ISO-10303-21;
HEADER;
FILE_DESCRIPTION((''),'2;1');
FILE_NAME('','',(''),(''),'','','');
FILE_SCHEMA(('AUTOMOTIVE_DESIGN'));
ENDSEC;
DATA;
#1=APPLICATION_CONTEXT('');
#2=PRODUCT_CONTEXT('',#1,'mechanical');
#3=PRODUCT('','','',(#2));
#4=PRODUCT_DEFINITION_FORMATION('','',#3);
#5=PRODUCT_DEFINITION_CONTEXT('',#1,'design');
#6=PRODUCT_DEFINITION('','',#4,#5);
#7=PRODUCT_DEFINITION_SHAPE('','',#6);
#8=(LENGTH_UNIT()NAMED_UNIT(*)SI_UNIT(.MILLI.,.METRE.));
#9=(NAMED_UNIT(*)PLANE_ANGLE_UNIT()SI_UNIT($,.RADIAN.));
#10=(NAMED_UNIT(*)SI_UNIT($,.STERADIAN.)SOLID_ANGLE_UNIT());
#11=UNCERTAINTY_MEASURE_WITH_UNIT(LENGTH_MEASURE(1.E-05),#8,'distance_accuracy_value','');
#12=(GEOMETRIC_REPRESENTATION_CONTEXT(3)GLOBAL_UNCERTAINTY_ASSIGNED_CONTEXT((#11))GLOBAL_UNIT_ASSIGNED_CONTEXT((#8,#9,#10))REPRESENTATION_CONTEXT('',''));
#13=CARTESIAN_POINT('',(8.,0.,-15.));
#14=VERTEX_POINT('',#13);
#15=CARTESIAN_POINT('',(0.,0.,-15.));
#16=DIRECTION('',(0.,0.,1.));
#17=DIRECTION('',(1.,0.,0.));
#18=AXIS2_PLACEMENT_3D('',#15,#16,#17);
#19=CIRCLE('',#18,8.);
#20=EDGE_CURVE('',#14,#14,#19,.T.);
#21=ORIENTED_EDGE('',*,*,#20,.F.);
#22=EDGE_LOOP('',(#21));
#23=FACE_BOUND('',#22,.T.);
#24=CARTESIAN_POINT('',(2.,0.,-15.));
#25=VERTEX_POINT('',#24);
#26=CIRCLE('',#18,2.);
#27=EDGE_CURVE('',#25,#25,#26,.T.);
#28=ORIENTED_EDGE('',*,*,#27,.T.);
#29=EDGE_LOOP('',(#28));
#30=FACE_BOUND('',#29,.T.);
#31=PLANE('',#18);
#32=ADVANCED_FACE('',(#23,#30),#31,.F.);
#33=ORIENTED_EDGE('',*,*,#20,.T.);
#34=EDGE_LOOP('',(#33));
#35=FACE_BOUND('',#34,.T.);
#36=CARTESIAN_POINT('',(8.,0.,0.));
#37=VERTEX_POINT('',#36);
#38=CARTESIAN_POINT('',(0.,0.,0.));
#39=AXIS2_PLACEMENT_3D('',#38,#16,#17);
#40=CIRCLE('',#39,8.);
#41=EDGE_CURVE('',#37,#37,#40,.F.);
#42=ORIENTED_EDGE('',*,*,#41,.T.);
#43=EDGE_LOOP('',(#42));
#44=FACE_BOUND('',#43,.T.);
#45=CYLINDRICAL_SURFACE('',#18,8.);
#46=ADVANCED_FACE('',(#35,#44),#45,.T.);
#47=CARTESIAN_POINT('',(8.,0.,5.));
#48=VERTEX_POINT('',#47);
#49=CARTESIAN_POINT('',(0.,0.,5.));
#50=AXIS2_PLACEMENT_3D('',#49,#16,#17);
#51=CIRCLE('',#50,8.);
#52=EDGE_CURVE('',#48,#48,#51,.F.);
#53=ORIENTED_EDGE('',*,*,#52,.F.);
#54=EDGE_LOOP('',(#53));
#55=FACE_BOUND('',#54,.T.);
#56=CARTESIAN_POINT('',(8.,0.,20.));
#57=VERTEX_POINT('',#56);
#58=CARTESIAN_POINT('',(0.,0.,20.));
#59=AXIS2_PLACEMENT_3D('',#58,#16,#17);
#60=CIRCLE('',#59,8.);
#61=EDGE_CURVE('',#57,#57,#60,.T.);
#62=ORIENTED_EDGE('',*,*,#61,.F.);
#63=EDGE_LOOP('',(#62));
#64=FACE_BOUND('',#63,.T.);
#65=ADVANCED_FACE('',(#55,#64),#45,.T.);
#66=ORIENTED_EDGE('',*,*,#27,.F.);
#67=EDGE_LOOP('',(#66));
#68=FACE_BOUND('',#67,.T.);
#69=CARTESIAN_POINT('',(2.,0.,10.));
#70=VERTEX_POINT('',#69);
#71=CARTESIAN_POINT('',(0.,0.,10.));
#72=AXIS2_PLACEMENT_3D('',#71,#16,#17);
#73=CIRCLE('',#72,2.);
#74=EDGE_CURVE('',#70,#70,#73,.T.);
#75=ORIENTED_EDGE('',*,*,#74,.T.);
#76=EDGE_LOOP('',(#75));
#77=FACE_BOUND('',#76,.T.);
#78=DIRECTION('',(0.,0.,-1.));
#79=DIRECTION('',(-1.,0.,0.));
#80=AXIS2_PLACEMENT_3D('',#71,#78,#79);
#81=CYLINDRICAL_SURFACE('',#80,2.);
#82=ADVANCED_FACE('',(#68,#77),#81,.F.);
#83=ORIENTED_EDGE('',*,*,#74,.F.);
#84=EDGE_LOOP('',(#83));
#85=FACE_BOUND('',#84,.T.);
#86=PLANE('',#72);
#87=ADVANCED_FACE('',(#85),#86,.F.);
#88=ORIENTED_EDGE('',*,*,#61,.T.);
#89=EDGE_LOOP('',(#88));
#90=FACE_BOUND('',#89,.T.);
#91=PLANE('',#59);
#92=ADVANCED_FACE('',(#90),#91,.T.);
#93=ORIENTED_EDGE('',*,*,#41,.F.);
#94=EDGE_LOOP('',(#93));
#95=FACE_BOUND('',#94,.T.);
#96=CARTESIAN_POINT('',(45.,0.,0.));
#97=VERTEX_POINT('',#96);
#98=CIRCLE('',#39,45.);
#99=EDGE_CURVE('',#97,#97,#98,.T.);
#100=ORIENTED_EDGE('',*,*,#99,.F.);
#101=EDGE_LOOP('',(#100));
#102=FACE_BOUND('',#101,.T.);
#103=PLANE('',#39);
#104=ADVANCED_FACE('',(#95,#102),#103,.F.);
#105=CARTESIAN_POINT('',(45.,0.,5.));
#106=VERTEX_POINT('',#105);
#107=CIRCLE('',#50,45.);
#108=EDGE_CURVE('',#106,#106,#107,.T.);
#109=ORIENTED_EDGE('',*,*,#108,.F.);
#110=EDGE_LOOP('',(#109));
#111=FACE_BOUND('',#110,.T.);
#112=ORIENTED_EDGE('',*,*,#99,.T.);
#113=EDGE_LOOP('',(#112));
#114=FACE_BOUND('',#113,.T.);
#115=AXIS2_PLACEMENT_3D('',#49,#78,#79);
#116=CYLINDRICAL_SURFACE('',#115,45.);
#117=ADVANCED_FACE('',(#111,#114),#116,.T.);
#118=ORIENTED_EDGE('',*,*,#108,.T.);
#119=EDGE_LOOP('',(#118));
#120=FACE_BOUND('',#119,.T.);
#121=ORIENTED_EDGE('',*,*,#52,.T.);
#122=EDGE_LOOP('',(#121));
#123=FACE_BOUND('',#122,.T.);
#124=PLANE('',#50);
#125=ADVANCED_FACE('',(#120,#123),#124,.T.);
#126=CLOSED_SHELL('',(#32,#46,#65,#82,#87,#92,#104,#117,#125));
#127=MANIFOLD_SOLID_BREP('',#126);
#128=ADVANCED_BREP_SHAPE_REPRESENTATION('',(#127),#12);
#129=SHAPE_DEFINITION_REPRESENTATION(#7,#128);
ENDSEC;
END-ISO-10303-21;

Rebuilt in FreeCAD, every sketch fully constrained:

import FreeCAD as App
import Part
import Sketcher
from FreeCAD import Vector
Q = App.Units.Quantity

doc = App.newDocument("Part")
body = doc.addObject("PartDesign::Body", "Body")

sketch1 = body.newObject("Sketcher::SketchObject", "Sketch")
sketch1.AttachmentSupport = (doc.getObject("XY_Plane"), [""])
sketch1.MapMode = "FlatFace"
sketch1.addGeometry(Part.Circle(Vector(0, 0, 0), Vector(0, 0, 1), 8), False)
sketch1.addConstraint(Sketcher.Constraint("Coincident", 0, 3, -1, 1))
sketch1.addConstraint(Sketcher.Constraint("Diameter", 0, Q("16 mm")))
pad1 = body.newObject("PartDesign::Pad", "Pad")
pad1.Profile = sketch1
pad1.Type = "TwoLengths"
pad1.Length = 20
pad1.Length2 = 15

sketch2 = body.newObject("Sketcher::SketchObject", "Sketch001")
sketch2.AttachmentSupport = (doc.getObject("XY_Plane"), [""])
sketch2.MapMode = "FlatFace"
sketch2.addGeometry(Part.Circle(Vector(0, 0, 0), Vector(0, 0, 1), 45), False)
sketch2.addConstraint(Sketcher.Constraint("Coincident", 0, 3, -1, 1))
sketch2.addConstraint(Sketcher.Constraint("Diameter", 0, Q("90 mm")))
pad2 = body.newObject("PartDesign::Pad", "Pad001")
pad2.Profile = sketch2
pad2.Length = 5

sketch3 = body.newObject("Sketcher::SketchObject", "Sketch002")
sketch3.AttachmentSupport = (doc.getObject("XY_Plane"), [""])
sketch3.MapMode = "FlatFace"
sketch3.addGeometry(Part.Circle(Vector(0, 0, 0), Vector(0, 0, 1), 2), False)
sketch3.addConstraint(Sketcher.Constraint("Coincident", 0, 3, -1, 1))
sketch3.addConstraint(Sketcher.Constraint("Diameter", 0, Q("4 mm")))
pocket1 = body.newObject("PartDesign::Pocket", "Pocket")
pocket1.Profile = sketch3
pocket1.Type = "TwoLengths"
pocket1.Length = 10
pocket1.Length2 = 15
pocket1.Reversed = True

doc.recompute()
